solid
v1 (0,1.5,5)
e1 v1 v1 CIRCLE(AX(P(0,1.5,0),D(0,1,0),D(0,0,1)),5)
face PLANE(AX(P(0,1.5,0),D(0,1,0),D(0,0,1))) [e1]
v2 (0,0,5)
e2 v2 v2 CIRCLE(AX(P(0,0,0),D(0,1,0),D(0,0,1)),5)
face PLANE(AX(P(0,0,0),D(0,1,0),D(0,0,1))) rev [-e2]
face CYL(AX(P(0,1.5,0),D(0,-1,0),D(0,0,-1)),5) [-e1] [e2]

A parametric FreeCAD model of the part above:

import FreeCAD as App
import Part
import Sketcher

V = App.Vector
Q = App.Units.Quantity

doc = App.newDocument("Part")
body = doc.addObject("PartDesign::Body", "Body")

sketch1 = doc.addObject("Sketcher::SketchObject", "Sketch")
body.addObject(sketch1)
sketch1.AttachmentSupport = (doc.XZ_Plane, [""])
sketch1.MapMode = "FlatFace"
sketch1.addGeometry(Part.Circle(V(0, 0, 0), V(0, 0, 1), 5), False)
sketch1.addConstraint(Sketcher.Constraint("Coincident", 0, 3, -1, 1))
sketch1.addConstraint(Sketcher.Constraint("Diameter", 0, Q("10 mm")))
pad1 = doc.addObject("PartDesign::Pad", "Pad")
body.addObject(pad1)
pad1.Profile = sketch1
pad1.Length = 1.5
pad1.Reversed = True

doc.recompute()
